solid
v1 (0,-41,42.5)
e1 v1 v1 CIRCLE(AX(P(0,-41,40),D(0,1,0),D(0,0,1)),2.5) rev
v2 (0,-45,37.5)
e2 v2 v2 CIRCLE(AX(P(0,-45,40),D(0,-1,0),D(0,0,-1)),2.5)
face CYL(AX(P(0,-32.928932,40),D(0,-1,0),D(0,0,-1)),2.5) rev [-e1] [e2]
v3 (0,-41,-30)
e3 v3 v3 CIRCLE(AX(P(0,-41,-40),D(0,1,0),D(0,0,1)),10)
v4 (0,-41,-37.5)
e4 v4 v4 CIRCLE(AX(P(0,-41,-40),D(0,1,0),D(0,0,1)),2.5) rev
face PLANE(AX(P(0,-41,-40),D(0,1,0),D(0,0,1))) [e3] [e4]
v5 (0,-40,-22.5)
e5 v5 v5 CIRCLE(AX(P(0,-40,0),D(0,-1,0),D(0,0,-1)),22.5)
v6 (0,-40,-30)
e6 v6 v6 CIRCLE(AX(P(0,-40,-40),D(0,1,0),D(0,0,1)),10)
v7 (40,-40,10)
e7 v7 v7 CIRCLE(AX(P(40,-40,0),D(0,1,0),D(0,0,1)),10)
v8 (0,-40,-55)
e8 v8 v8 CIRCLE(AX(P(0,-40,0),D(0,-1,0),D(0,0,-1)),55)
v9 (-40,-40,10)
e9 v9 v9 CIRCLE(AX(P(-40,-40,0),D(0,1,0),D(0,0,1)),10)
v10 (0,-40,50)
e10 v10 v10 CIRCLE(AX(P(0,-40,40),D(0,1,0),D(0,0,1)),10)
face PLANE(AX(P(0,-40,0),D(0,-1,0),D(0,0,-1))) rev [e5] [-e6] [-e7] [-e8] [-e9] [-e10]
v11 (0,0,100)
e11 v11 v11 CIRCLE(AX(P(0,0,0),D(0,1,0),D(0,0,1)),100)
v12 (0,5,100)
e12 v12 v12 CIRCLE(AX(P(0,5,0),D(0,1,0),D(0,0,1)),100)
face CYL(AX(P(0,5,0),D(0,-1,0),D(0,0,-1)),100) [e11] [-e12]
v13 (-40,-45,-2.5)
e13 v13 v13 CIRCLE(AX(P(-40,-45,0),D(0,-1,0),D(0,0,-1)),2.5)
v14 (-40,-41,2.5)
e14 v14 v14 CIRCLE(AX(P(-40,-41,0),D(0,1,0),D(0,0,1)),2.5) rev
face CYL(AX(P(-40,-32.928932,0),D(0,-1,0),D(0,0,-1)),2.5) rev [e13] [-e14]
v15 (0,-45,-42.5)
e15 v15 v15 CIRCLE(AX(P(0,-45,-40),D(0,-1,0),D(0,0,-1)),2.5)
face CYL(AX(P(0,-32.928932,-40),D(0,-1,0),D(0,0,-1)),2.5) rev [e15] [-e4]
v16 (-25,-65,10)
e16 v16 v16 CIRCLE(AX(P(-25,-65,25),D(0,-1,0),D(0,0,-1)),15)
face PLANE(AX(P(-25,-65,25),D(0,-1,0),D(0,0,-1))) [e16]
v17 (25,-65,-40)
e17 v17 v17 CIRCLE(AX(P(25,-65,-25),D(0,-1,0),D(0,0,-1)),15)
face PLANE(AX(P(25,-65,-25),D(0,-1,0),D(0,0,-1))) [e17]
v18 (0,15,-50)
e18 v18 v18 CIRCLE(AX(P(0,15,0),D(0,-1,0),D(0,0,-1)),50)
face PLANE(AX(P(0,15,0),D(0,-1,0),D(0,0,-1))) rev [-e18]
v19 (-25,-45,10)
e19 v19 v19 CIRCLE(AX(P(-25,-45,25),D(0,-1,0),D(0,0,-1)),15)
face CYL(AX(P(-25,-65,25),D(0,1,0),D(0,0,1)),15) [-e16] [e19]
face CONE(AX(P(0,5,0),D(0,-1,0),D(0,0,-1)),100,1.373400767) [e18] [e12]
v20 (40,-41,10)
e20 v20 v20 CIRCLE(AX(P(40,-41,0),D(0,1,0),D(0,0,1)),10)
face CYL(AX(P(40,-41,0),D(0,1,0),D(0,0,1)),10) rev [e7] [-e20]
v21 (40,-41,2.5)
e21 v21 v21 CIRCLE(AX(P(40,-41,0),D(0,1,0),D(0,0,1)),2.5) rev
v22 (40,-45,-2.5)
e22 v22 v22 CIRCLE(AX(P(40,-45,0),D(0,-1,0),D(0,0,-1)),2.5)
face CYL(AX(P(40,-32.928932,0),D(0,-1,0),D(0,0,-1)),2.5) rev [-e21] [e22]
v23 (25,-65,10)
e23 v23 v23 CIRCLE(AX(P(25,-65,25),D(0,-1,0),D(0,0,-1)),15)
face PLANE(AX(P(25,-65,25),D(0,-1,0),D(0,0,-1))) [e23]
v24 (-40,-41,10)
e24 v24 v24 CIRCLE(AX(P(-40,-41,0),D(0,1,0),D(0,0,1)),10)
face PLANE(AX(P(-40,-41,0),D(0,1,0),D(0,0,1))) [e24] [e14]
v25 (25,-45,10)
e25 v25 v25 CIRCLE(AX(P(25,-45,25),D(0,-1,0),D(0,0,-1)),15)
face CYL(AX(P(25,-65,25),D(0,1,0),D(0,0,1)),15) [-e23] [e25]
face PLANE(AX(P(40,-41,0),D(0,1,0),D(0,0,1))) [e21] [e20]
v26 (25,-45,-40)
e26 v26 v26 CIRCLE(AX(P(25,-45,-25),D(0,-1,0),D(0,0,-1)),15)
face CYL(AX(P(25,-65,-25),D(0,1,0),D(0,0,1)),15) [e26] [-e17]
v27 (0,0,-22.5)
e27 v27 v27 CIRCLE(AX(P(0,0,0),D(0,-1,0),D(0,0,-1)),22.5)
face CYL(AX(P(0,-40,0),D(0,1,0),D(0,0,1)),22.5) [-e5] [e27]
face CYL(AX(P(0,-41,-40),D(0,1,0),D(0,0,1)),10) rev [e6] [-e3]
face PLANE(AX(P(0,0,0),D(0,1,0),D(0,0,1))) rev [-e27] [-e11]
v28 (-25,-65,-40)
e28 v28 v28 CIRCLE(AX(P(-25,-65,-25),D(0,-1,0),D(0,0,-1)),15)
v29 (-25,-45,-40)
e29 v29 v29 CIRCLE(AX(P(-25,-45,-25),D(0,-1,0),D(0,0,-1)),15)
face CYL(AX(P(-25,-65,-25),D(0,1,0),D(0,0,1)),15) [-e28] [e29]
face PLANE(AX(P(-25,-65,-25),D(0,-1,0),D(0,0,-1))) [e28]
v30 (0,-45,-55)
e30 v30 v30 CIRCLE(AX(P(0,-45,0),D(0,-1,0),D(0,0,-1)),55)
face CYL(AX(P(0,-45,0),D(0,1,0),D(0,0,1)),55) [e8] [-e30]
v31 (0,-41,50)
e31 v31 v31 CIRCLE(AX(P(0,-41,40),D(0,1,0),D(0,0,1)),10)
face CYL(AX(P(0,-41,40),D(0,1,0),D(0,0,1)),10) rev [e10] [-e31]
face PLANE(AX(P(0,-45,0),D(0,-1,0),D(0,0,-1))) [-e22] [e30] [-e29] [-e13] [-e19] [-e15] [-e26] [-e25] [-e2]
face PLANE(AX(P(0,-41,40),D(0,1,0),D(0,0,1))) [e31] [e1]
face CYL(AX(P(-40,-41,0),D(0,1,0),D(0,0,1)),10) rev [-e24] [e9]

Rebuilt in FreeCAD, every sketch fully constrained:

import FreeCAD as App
import Part
import Sketcher
Q = App.Units.Quantity

doc = App.newDocument("Part")
body = doc.addObject("PartDesign::Body", "Body")

sketch1 = body.newObject("Sketcher::SketchObject", "Sketch")
sketch1.AttachmentSupport = (doc.getObject("XZ_Plane"), [""])
sketch1.MapMode = "FlatFace"
sketch1.addGeometry(Part.Circle(App.Vector(0, 0, 0), App.Vector(0, 0, 1), 100), False)
sketch1.addConstraint(Sketcher.Constraint("Coincident", 0, 3, -1, 1))
sketch1.addConstraint(Sketcher.Constraint("Diameter", 0, Q("200 mm")))
pad1 = body.newObject("PartDesign::Pad", "Pad")
pad1.Profile = sketch1
pad1.Length = 5
pad1.Reversed = True
body2 = doc.addObject("PartDesign::Body", "Body001")

sketch2 = body2.newObject("Sketcher::SketchObject", "Sketch001")
sketch2.AttachmentSupport = (doc.getObject("XZ_Plane001"), [""])
sketch2.MapMode = "FlatFace"
sketch2.AttachmentOffset = App.Placement(App.Vector(0, 0, -15), App.Rotation())
sketch2.addGeometry(Part.Circle(App.Vector(0, 0, 0), App.Vector(0, 0, 1), 50), False)
sketch2.addConstraint(Sketcher.Constraint("Coincident", 0, 3, -1, 1))
sketch2.addConstraint(Sketcher.Constraint("Diameter", 0, Q("100 mm")))
pad2 = body2.newObject("PartDesign::Pad", "Pad001")
pad2.Profile = sketch2
pad2.Length = 5
body.AllowCompound = True
doc.recompute()

boolean = body.newObject("PartDesign::Boolean", "Boolean")
boolean.Type = "Fuse"
boolean.addObjects([body2])

sketch3 = body.newObject("Sketcher::SketchObject", "Sketch002")
sketch3.AttachmentSupport = (doc.getObject("XZ_Plane"), [""])
sketch3.MapMode = "FlatFace"
sketch3.AttachmentOffset = App.Placement(App.Vector(0, 0, -5), App.Rotation())
sketch3.addGeometry(Part.Circle(App.Vector(0, 0, 0), App.Vector(0, 0, 1), 10), False)
sketch3.addGeometry(Part.Circle(App.Vector(0, 0, 0), App.Vector(0, 0, 1), 5), False)
sketch3.addConstraint(Sketcher.Constraint("Coincident", 0, 3, -1, 1))
sketch3.addConstraint(Sketcher.Constraint("Coincident", 1, 3, -1, 1))
sketch3.addConstraint(Sketcher.Constraint("Diameter", 0, Q("20 mm")))
sketch3.addConstraint(Sketcher.Constraint("Diameter", 1, Q("10 mm")))
pad3 = body.newObject("PartDesign::Pad", "Pad002")
pad3.Profile = sketch3
pad3.Length = 5
pad3.Reversed = True

sketch4 = body.newObject("Sketcher::SketchObject", "Sketch003")
sketch4.AttachmentSupport = (doc.getObject("XY_Plane"), [""])
sketch4.MapMode = "FlatFace"
sketch4.addGeometry(Part.LineSegment(App.Vector(100, 5, 0), App.Vector(50, 15, 0)), False)
sketch4.addGeometry(Part.LineSegment(App.Vector(50, 15, 0), App.Vector(50, 10, 0)), False)
sketch4.addGeometry(Part.LineSegment(App.Vector(50, 10, 0), App.Vector(0, 10, 0)), False)
sketch4.addGeometry(Part.LineSegment(App.Vector(0, 10, 0), App.Vector(0, 5, 0)), False)
sketch4.addGeometry(Part.LineSegment(App.Vector(0, 5, 0), App.Vector(100, 5, 0)), False)
sketch4.addConstraint(Sketcher.Constraint("Coincident", 0, 2, 1, 1))
sketch4.addConstraint(Sketcher.Constraint("Coincident", 1, 2, 2, 1))
sketch4.addConstraint(Sketcher.Constraint("Coincident", 2, 2, 3, 1))
sketch4.addConstraint(Sketcher.Constraint("Coincident", 3, 2, 4, 1))
sketch4.addConstraint(Sketcher.Constraint("Coincident", 4, 2, 0, 1))
sketch4.addConstraint(Sketcher.Constraint("Vertical", 1))
sketch4.addConstraint(Sketcher.Constraint("Horizontal", 2))
sketch4.addConstraint(Sketcher.Constraint("Vertical", 3))
sketch4.addConstraint(Sketcher.Constraint("Horizontal", 4))
sketch4.addConstraint(Sketcher.Constraint("PointOnObject", 2, 2, -2))
sketch4.addConstraint(Sketcher.Constraint("Equal", 1, 3))
sketch4.addConstraint(Sketcher.Constraint("DistanceX", 2, 2, 2, 1, Q("50 mm")))
sketch4.addConstraint(Sketcher.Constraint("DistanceX", 4, 1, 4, 2, Q("100 mm")))
sketch4.addConstraint(Sketcher.Constraint("DistanceY", 1, 2, 1, 1, Q("5 mm")))
sketch4.addConstraint(Sketcher.Constraint("DistanceY", -1, 1, 0, 2, Q("15 mm")))
revolution = body.newObject("PartDesign::Revolution", "Revolution")
revolution.Profile = sketch4
revolution.ReferenceAxis = (sketch4, ["V_Axis"])
revolution.Angle = 360

sketch5 = body.newObject("Sketcher::SketchObject", "Sketch004")
sketch5.AttachmentSupport = (doc.getObject("XZ_Plane"), [""])
sketch5.MapMode = "FlatFace"
sketch5.addGeometry(Part.Circle(App.Vector(0, 0, 0), App.Vector(0, 0, 1), 22), False)
sketch5.addConstraint(Sketcher.Constraint("Coincident", 0, 3, -1, 1))
sketch5.addConstraint(Sketcher.Constraint("Diameter", 0, Q("45 mm")))
pad4 = body.newObject("PartDesign::Pad", "Pad003")
pad4.Profile = sketch5
pad4.Length = 40

sketch6 = body.newObject("Sketcher::SketchObject", "Sketch005")
sketch6.AttachmentSupport = (doc.getObject("XZ_Plane"), [""])
sketch6.MapMode = "FlatFace"
sketch6.AttachmentOffset = App.Placement(App.Vector(0, 0, 40), App.Rotation())
sketch6.addGeometry(Part.Circle(App.Vector(0, 0, 0), App.Vector(0, 0, 1), 55), False)
sketch6.addConstraint(Sketcher.Constraint("Coincident", 0, 3, -1, 1))
sketch6.addConstraint(Sketcher.Constraint("Diameter", 0, Q("110 mm")))
pad5 = body.newObject("PartDesign::Pad", "Pad004")
pad5.Profile = sketch6
pad5.Length = 5

sketch7 = body.newObject("Sketcher::SketchObject", "Sketch006")
sketch7.AttachmentSupport = (doc.getObject("XZ_Plane"), [""])
sketch7.MapMode = "FlatFace"
sketch7.AttachmentOffset = App.Placement(App.Vector(0, 0, 45), App.Rotation())
sketch7.addGeometry(Part.Circle(App.Vector(-25, -25, 0), App.Vector(0, 0, 1), 15), False)
sketch7.addGeometry(Part.Circle(App.Vector(25, -25, 0), App.Vector(0, 0, 1), 15), False)
sketch7.addGeometry(Part.Circle(App.Vector(25, 25, 0), App.Vector(0, 0, 1), 15), False)
sketch7.addGeometry(Part.Circle(App.Vector(-25, 25, 0), App.Vector(0, 0, 1), 15), False)
sketch7.addConstraint(Sketcher.Constraint("Equal", 0, 1))
sketch7.addConstraint(Sketcher.Constraint("Equal", 1, 2))
sketch7.addConstraint(Sketcher.Constraint("Equal", 2, 3))
sketch7.addConstraint(Sketcher.Constraint("Symmetric", 0, 3, 2, 3, -1, 1))
sketch7.addConstraint(Sketcher.Constraint("Symmetric", 1, 3, 3, 3, -1, 1))
sketch7.addConstraint(Sketcher.Constraint("Symmetric", 0, 3, 1, 3, -2))
sketch7.addConstraint(Sketcher.Constraint("Diameter", 0, Q("30 mm")))
sketch7.addConstraint(Sketcher.Constraint("DistanceX", 0, 3, -1, 1, Q("25 mm")))
sketch7.addConstraint(Sketcher.Constraint("DistanceY", 0, 3, -1, 1, Q("25 mm")))
pad6 = body.newObject("PartDesign::Pad", "Pad005")
pad6.Profile = sketch7
pad6.Length = 20

sketch8 = body.newObject("Sketcher::SketchObject", "Sketch007")
sketch8.AttachmentSupport = (doc.getObject("XZ_Plane"), [""])
sketch8.MapMode = "FlatFace"
sketch8.AttachmentOffset = App.Placement(App.Vector(0, 0, 45), App.Rotation())
sketch8.addGeometry(Part.Circle(App.Vector(0, 40, 0), App.Vector(0, 0, 1), 2.5), False)
sketch8.addGeometry(Part.Circle(App.Vector(40, 0, 0), App.Vector(0, 0, 1), 2.5), False)
sketch8.addGeometry(Part.Circle(App.Vector(0, -40, 0), App.Vector(0, 0, 1), 2.5), False)
sketch8.addGeometry(Part.Circle(App.Vector(-40, 0, 0), App.Vector(0, 0, 1), 2.5), False)
sketch8.addConstraint(Sketcher.Constraint("Equal", 0, 1))
sketch8.addConstraint(Sketcher.Constraint("Equal", 1, 2))
sketch8.addConstraint(Sketcher.Constraint("Equal", 2, 3))
sketch8.addConstraint(Sketcher.Constraint("Symmetric", 0, 3, 2, 3, -1, 1))
sketch8.addConstraint(Sketcher.Constraint("Symmetric", 1, 3, 3, 3, -1, 1))
sketch8.addConstraint(Sketcher.Constraint("PointOnObject", 0, 3, -2))
sketch8.addConstraint(Sketcher.Constraint("PointOnObject", 1, 3, -1))
sketch8.addConstraint(Sketcher.Constraint("Diameter", 0, Q("5 mm")))
sketch8.addConstraint(Sketcher.Constraint("DistanceY", -1, 1, 0, 3, Q("40 mm")))
sketch8.addConstraint(Sketcher.Constraint("DistanceX", -1, 1, 1, 3, Q("40 mm")))
pocket1 = body.newObject("PartDesign::Pocket", "Pocket")
pocket1.Profile = sketch8
pocket1.Length = 5

sketch9 = body.newObject("Sketcher::SketchObject", "Sketch008")
sketch9.AttachmentSupport = (doc.getObject("XZ_Plane"), [""])
sketch9.MapMode = "FlatFace"
sketch9.AttachmentOffset = App.Placement(App.Vector(0, 0, 40), App.Rotation())
sketch9.addGeometry(Part.Circle(App.Vector(0, -40, 0), App.Vector(0, 0, 1), 10), False)
sketch9.addGeometry(Part.Circle(App.Vector(40, 0, 0), App.Vector(0, 0, 1), 10), False)
sketch9.addGeometry(Part.Circle(App.Vector(0, 40, 0), App.Vector(0, 0, 1), 10), False)
sketch9.addGeometry(Part.Circle(App.Vector(-40, 0, 0), App.Vector(0, 0, 1), 10), False)
sketch9.addConstraint(Sketcher.Constraint("Equal", 0, 1))
sketch9.addConstraint(Sketcher.Constraint("Equal", 1, 2))
sketch9.addConstraint(Sketcher.Constraint("Equal", 2, 3))
sketch9.addConstraint(Sketcher.Constraint("Symmetric", 0, 3, 2, 3, -1, 1))
sketch9.addConstraint(Sketcher.Constraint("Symmetric", 1, 3, 3, 3, -1, 1))
sketch9.addConstraint(Sketcher.Constraint("PointOnObject", 0, 3, -2))
sketch9.addConstraint(Sketcher.Constraint("PointOnObject", 1, 3, -1))
sketch9.addConstraint(Sketcher.Constraint("Diameter", 0, Q("20 mm")))
sketch9.addConstraint(Sketcher.Constraint("DistanceY", 0, 3, -1, 1, Q("40 mm")))
sketch9.addConstraint(Sketcher.Constraint("DistanceX", -1, 1, 1, 3, Q("40 mm")))
pocket2 = body.newObject("PartDesign::Pocket", "Pocket001")
pocket2.Profile = sketch9
pocket2.Length = 1
pocket2.Reversed = True

doc.recompute()
